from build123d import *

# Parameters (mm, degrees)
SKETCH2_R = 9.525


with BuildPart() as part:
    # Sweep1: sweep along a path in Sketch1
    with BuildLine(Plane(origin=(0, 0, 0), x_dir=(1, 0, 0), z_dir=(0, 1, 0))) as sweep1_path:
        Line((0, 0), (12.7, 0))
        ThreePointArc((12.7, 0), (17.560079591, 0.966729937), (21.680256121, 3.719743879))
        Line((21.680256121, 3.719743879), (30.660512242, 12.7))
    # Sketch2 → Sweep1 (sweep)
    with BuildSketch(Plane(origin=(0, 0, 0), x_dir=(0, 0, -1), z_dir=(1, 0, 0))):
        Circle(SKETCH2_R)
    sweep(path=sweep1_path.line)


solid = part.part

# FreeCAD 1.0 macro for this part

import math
import FreeCAD as App
import Part
import Sketcher
Q = App.Units.Quantity

doc = App.newDocument("Part")
params = doc.addObject("Spreadsheet::Sheet", "Params")
for row, (alias, value) in enumerate([
    ("sketch1_diameter", "0.75 in"),
    ("sketch2_radius", "0.5 in"),
    ("sketch2_width", "0.5 in"),
], start=1):
    params.set(f"A{row}", alias)
    params.set(f"B{row}", "=" + value)
    params.setAlias(f"B{row}", alias)

body = doc.addObject("PartDesign::Body", "Body")

# Sketch on YZ plane
sketch1 = doc.addObject("Sketcher::SketchObject", "Sketch")
body.addObject(sketch1)
sketch1.AttachmentSupport = (doc.YZ_Plane, [""])
sketch1.MapMode = "FlatFace"
sketch1.addGeometry(Part.Circle(App.Vector(0, 0, 0), App.Vector(0, 0, 1), 10), False)
sketch1.addConstraint(Sketcher.Constraint("Coincident", 0, 3, -1, 1))
sketch1.addConstraint(Sketcher.Constraint("Diameter", 0, Q("0.75 in")))
sketch1.setExpression("Constraints[1]", "Params.sketch1_diameter")

# Sketch on XZ plane
sketch2 = doc.addObject("Sketcher::SketchObject", "Sketch001")
body.addObject(sketch2)
sketch2.AttachmentSupport = (doc.XZ_Plane, [""])
sketch2.MapMode = "FlatFace"
sketch2.addGeometry(Part.LineSegment(App.Vector(0, 0, 0), App.Vector(13, 0, 0)), False)
sketch2.addGeometry(Part.ArcOfCircle(Part.Circle(App.Vector(13, -13, 0), App.Vector(0, 0, 1), 13), math.radians(45), math.radians(90)), False)
sketch2.addGeometry(Part.LineSegment(App.Vector(22, -4, 0), App.Vector(31, -13, 0)), False)
sketch2.addConstraint(Sketcher.Constraint("Tangent", 0, 2, 1, 2))
sketch2.addConstraint(Sketcher.Constraint("Tangent", 1, 1, 2, 1))
sketch2.addConstraint(Sketcher.Constraint("Horizontal", 0))
sketch2.addConstraint(Sketcher.Constraint("Coincident", 0, 1, -1, 1))
sketch2.addConstraint(Sketcher.Constraint("Horizontal", 1, 3, 2, 2))
sketch2.addConstraint(Sketcher.Constraint("Radius", 1, Q("0.5 in")))
sketch2.addConstraint(Sketcher.Constraint("DistanceX", 0, 1, 0, 2, Q("0.5 in")))
sketch2.addConstraint(Sketcher.Constraint("Angle", 2, Q("-45 deg")))
sketch2.setExpression("Constraints[5]", "Params.sketch2_radius")
sketch2.setExpression("Constraints[6]", "Params.sketch2_width")
doc.recompute()

additivepipe = doc.addObject("PartDesign::AdditivePipe", "AdditivePipe")
body.addObject(additivepipe)
additivepipe.Profile = sketch1
additivepipe.Spine = (sketch2, ["Edge1", "Edge2", "Edge3"])

doc.recompute()
